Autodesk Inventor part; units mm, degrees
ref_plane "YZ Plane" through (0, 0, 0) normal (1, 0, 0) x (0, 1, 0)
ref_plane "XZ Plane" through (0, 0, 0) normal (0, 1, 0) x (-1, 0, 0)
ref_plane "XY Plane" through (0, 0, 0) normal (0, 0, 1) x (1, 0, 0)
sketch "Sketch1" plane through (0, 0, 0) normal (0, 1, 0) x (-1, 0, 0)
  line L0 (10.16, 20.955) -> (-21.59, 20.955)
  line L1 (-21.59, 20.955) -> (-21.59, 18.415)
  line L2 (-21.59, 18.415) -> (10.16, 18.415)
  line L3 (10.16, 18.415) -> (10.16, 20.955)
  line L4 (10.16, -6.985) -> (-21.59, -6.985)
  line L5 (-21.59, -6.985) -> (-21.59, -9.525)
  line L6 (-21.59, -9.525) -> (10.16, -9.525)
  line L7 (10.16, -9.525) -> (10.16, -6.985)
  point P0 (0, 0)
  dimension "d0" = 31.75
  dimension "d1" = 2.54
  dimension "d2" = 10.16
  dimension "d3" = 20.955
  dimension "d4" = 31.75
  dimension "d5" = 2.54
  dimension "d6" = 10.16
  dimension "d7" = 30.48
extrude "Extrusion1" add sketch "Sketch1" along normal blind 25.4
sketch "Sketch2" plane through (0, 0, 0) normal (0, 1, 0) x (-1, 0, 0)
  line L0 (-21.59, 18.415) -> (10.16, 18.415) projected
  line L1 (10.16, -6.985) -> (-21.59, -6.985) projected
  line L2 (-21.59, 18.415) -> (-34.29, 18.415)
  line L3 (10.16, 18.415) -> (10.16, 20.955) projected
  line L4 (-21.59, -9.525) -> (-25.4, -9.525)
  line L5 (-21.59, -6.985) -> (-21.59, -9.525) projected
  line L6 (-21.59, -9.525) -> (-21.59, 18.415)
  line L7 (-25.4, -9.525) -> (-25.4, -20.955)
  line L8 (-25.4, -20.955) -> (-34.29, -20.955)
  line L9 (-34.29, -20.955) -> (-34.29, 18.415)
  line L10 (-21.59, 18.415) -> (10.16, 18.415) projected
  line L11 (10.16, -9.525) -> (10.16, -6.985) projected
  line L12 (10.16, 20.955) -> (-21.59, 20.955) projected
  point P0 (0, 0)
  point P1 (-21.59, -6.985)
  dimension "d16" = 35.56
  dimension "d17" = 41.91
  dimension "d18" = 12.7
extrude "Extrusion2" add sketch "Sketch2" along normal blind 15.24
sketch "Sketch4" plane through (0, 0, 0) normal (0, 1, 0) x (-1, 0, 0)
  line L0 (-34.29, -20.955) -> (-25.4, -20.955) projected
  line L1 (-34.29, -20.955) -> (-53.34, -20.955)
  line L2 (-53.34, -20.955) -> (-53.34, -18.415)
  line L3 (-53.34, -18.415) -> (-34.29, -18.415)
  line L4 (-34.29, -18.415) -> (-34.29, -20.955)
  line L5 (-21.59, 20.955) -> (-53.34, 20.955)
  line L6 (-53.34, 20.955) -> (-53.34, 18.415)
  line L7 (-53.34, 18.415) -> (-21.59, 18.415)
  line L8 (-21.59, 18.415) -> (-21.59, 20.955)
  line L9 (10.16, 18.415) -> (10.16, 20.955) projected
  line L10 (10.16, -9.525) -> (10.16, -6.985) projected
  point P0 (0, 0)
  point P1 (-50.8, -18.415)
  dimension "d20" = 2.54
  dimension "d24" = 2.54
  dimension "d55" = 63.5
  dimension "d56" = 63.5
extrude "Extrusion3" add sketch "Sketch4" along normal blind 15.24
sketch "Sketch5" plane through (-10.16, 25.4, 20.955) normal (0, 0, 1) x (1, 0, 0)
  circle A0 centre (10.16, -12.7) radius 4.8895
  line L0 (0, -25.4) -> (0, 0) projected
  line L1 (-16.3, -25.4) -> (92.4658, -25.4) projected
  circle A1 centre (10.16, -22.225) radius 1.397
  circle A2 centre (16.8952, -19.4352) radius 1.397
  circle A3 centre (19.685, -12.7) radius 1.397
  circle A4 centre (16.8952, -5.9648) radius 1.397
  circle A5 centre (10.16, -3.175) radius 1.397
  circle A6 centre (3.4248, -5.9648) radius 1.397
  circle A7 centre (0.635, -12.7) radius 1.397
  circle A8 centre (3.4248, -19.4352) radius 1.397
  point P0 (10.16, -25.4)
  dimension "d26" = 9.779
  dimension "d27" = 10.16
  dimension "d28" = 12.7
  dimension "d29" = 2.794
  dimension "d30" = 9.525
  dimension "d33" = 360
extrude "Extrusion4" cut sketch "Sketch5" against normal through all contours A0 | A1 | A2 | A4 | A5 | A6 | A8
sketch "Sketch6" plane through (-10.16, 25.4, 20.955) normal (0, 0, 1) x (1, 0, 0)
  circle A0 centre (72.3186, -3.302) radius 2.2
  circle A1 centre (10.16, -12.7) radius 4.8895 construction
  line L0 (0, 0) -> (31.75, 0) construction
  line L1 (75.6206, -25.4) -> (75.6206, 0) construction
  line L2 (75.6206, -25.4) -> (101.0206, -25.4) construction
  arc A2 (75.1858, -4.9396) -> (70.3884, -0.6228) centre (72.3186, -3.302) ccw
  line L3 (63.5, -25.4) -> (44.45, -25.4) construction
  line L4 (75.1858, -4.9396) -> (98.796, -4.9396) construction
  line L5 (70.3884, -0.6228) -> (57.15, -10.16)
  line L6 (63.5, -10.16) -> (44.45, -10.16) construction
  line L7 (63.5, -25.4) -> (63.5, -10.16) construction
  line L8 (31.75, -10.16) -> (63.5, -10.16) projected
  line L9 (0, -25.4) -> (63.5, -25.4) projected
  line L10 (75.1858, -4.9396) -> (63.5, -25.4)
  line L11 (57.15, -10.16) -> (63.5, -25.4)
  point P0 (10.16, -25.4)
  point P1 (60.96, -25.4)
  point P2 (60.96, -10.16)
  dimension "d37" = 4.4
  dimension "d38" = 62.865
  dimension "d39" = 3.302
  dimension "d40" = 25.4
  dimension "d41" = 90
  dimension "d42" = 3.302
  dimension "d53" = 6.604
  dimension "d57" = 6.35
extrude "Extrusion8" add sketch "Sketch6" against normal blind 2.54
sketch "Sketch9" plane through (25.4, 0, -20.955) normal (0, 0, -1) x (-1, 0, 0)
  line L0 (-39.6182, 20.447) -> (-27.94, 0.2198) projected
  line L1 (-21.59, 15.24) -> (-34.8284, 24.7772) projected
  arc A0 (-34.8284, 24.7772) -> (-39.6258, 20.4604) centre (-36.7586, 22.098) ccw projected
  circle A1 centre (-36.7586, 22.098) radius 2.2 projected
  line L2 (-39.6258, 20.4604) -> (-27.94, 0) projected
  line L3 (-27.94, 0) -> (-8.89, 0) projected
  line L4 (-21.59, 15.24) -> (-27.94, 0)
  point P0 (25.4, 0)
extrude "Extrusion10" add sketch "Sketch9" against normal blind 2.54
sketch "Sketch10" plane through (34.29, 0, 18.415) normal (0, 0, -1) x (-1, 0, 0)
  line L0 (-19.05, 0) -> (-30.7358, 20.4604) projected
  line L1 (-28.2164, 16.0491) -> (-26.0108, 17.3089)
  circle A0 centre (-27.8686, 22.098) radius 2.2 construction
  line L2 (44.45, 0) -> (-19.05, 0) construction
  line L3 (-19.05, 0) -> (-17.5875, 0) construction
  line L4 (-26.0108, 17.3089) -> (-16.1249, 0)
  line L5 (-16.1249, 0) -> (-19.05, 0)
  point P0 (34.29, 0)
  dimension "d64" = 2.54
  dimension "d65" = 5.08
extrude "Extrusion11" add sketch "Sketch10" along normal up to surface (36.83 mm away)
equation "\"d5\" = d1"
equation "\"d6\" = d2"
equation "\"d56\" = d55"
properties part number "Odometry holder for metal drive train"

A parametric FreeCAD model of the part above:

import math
import FreeCAD as App
import Part
import Sketcher
Q = App.Units.Quantity


def add_polygon(sketch, points):
    """Adds a closed chain of lines whose ends are joined by coincident constraints."""
    first, n = sketch.GeometryCount, len(points)
    for a, b in zip(points, points[1:] + points[:1]):
        sketch.addGeometry(Part.LineSegment(App.Vector(*a, 0), App.Vector(*b, 0)), False)
    for i in range(n):
        sketch.addConstraint(Sketcher.Constraint("Coincident", first + i, 2, first + (i + 1) % n, 1))

doc = App.newDocument("Part")
body = doc.addObject("PartDesign::Body", "Body")
body.AllowCompound = True

# Sketch on XZ plane
sketch1 = doc.addObject("Sketcher::SketchObject", "Sketch")
body.addObject(sketch1)
sketch1.AttachmentSupport = (doc.XZ_Plane, [""])
sketch1.MapMode = "FlatFace"
add_polygon(sketch1, [(-10.2, 18.4), (-10.2, 21), (21.6, 21), (21.6, 18.4)])  # lines 0-3
add_polygon(sketch1, [(-10.2, -9.5), (-10.2, -7), (21.6, -7), (21.6, -9.5)])  # lines 4-7
sketch1.addConstraint([
    Sketcher.Constraint("Vertical", 0),
    Sketcher.Constraint("Horizontal", 1),
    Sketcher.Constraint("Vertical", 2),
    Sketcher.Constraint("Horizontal", 3),
    Sketcher.Constraint("Vertical", 4),
    Sketcher.Constraint("Horizontal", 5),
    Sketcher.Constraint("Vertical", 6),
    Sketcher.Constraint("Horizontal", 7),
    Sketcher.Constraint("Vertical", 3, 2, 4, 2),
    Sketcher.Constraint("Vertical", 2, 2, 5, 2),
    Sketcher.Constraint("Equal", 2, 4),
    Sketcher.Constraint("DistanceY", 0, 1, 0, 2, Q("0.1 in")),
    Sketcher.Constraint("DistanceX", 1, 1, 1, 2, Q("1.25 in")),
    Sketcher.Constraint("DistanceX", 0, 2, -1, 1, Q("0.4 in")),
    Sketcher.Constraint("DistanceY", 6, 2, 1, 2, Q("1.2 in")),
    Sketcher.Constraint("DistanceY", -1, 1, 0, 2, Q("0.825 in")),
])
pad1 = doc.addObject("PartDesign::Pad", "Pad")
body.addObject(pad1)
pad1.Profile = sketch1
pad1.Length = Q("1 in")
pad1.Reversed = True

# Sketch on XZ plane
sketch2 = doc.addObject("Sketcher::SketchObject", "Sketch001")
body.addObject(sketch2)
sketch2.AttachmentSupport = (doc.XZ_Plane, [""])
sketch2.MapMode = "FlatFace"
add_polygon(sketch2, [(21.6, -9.5), (21.6, 18.4), (34.3, 18.4), (34.3, -21), (25.4, -21), (25.4, -9.5)])  # lines 0-5
sketch2.addConstraint([
    Sketcher.Constraint("Vertical", 0),
    Sketcher.Constraint("Horizontal", 1),
    Sketcher.Constraint("Vertical", 2),
    Sketcher.Constraint("Horizontal", 3),
    Sketcher.Constraint("Vertical", 4),
    Sketcher.Constraint("Horizontal", 5),
    Sketcher.Constraint("DistanceX", 1, 1, 1, 2, Q("0.5 in")),
    Sketcher.Constraint("DistanceY", 0, 1, 0, 2, Q("1.1 in")),
    Sketcher.Constraint("DistanceX", -1, 1, 3, 2, Q("1 in")),
    Sketcher.Constraint("DistanceX", 3, 2, 3, 1, Q("0.35 in")),
    Sketcher.Constraint("DistanceY", 2, 2, 2, 1, Q("1.55 in")),
    Sketcher.Constraint("DistanceY", -1, 1, 0, 2, Q("0.725 in")),
])
pad2 = doc.addObject("PartDesign::Pad", "Pad001")
body.addObject(pad2)
pad2.Profile = sketch2
pad2.Length = Q("0.6 in")
pad2.Reversed = True

# Sketch on XZ plane
sketch3 = doc.addObject("Sketcher::SketchObject", "Sketch002")
body.addObject(sketch3)
sketch3.AttachmentSupport = (doc.XZ_Plane, [""])
sketch3.MapMode = "FlatFace"
add_polygon(sketch3, [(53.3, -21), (34.3, -21), (34.3, -18.4), (53.3, -18.4)])  # lines 0-3
add_polygon(sketch3, [(21.6, 18.4), (21.6, 21), (53.3, 21), (53.3, 18.4)])  # lines 4-7
sketch3.addConstraint([
    Sketcher.Constraint("Horizontal", 0),
    Sketcher.Constraint("Vertical", 1),
    Sketcher.Constraint("Horizontal", 2),
    Sketcher.Constraint("Vertical", 3),
    Sketcher.Constraint("Vertical", 4),
    Sketcher.Constraint("Horizontal", 5),
    Sketcher.Constraint("Vertical", 6),
    Sketcher.Constraint("Horizontal", 7),
    Sketcher.Constraint("Symmetric", 3, 2, 5, 2, -1),
    Sketcher.Constraint("Equal", 3, 4),
    Sketcher.Constraint("DistanceY", 1, 1, 1, 2, Q("0.1 in")),
    Sketcher.Constraint("DistanceX", 0, 2, 0, 1, Q("0.75 in")),
    Sketcher.Constraint("DistanceX", 5, 1, 5, 2, Q("1.25 in")),
    Sketcher.Constraint("DistanceX", -1, 1, 2, 2, Q("2.1 in")),
    Sketcher.Constraint("DistanceY", 1, 2, 4, 2, Q("1.55 in")),
])
pad3 = doc.addObject("PartDesign::Pad", "Pad002")
body.addObject(pad3)
pad3.Profile = sketch3
pad3.Length = Q("0.6 in")
pad3.Reversed = True

# Sketch on XY plane
sketch4 = doc.addObject("Sketcher::SketchObject", "Sketch003")
body.addObject(sketch4)
sketch4.AttachmentSupport = (doc.XY_Plane, [""])
sketch4.MapMode = "FlatFace"
sketch4.AttachmentOffset = App.Placement(App.Vector(0, 0, 0.825 * 25.4), App.Rotation())
sketch4.addGeometry([
    Part.Circle(App.Vector(0, 12.7, 0), App.Vector(0, 0, 1), 4.9),  # 0
    Part.Circle(App.Vector(0, 3.2, 0), App.Vector(0, 0, 1), 1.4),  # 1
    Part.Circle(App.Vector(6.7, 6, 0), App.Vector(0, 0, 1), 1.4),  # 2
    Part.Circle(App.Vector(6.7, 19.4, 0), App.Vector(0, 0, 1), 1.4),  # 3
    Part.Circle(App.Vector(0, 22.2, 0), App.Vector(0, 0, 1), 1.4),  # 4
    Part.Circle(App.Vector(-6.7, 19.4, 0), App.Vector(0, 0, 1), 1.4),  # 5
    Part.Circle(App.Vector(-6.7, 6, 0), App.Vector(0, 0, 1), 1.4),  # 6
], False)
sketch4.addConstraint([
    Sketcher.Constraint("Equal", 1, 2),
    Sketcher.Constraint("Equal", 2, 3),
    Sketcher.Constraint("Equal", 3, 4),
    Sketcher.Constraint("Equal", 4, 5),
    Sketcher.Constraint("Equal", 5, 6),
    Sketcher.Constraint("Symmetric", 3, 3, 5, 3, -2),
    Sketcher.Constraint("Symmetric", 2, 3, 6, 3, -2),
    Sketcher.Constraint("PointOnObject", 0, 3, -2),
    Sketcher.Constraint("PointOnObject", 1, 3, -2),
    Sketcher.Constraint("PointOnObject", 4, 3, -2),
    Sketcher.Constraint("Vertical", 2, 3, 3, 3),
    Sketcher.Constraint("Diameter", 1, Q("0.11 in")),
    Sketcher.Constraint("Diameter", 0, Q("0.385 in")),
    Sketcher.Constraint("DistanceY", -1, 1, 0, 3, Q("0.5 in")),
    Sketcher.Constraint("DistanceY", 1, 3, 0, 3, Q("0.375 in")),
    Sketcher.Constraint("DistanceY", 0, 3, 4, 3, Q("0.375 in")),
    Sketcher.Constraint("DistanceX", -1, 1, 2, 3, Q("6.7352 mm")),
    Sketcher.Constraint("DistanceY", -1, 1, 2, 3, Q("5.9648 mm")),
    Sketcher.Constraint("DistanceY", -1, 1, 3, 3, Q("19.4352 mm")),
])
pocket1 = doc.addObject("PartDesign::Pocket", "Pocket")
body.addObject(pocket1)
pocket1.Profile = sketch4
pocket1.Type = "ThroughAll"

# Sketch on XY plane
sketch5 = doc.addObject("Sketcher::SketchObject", "Sketch004")
body.addObject(sketch5)
sketch5.AttachmentSupport = (doc.XY_Plane, [""])
sketch5.MapMode = "FlatFace"
sketch5.AttachmentOffset = App.Placement(App.Vector(0, 0, 0.825 * 25.4), App.Rotation())
sketch5.addGeometry([
    Part.LineSegment(App.Vector(53.3, 0, 0), App.Vector(65, 20.5, 0)),  # 0
    Part.ArcOfCircle(Part.Circle(App.Vector(62.2, 22.1, 0), App.Vector(0, 0, 1), 3.3), math.radians(-30), math.radians(126)),  # 1
    Part.LineSegment(App.Vector(60.2, 24.8, 0), App.Vector(47, 15.2, 0)),  # 2
    Part.LineSegment(App.Vector(47, 15.2, 0), App.Vector(53.3, 0, 0)),  # 3
    Part.Circle(App.Vector(62.2, 22.1, 0), App.Vector(0, 0, 1), 2.2),  # 4
], False)
sketch5.addConstraint([
    Sketcher.Constraint("Tangent", 0, 2, 1, 1),
    Sketcher.Constraint("Tangent", 1, 2, 2, 1),
    Sketcher.Constraint("Coincident", 2, 2, 3, 1),
    Sketcher.Constraint("Coincident", 3, 2, 0, 1),
    Sketcher.Constraint("Coincident", 4, 3, 1, 3),
    Sketcher.Constraint("PointOnObject", 3, 2, -1),
    Sketcher.Constraint("Radius", 1, Q("0.13 in")),
    Sketcher.Constraint("Diameter", 4, Q("4.4 mm")),
    Sketcher.Constraint("DistanceX", 2, 2, 3, 2, Q("0.25 in")),
    Sketcher.Constraint("DistanceY", -1, 1, 2, 2, Q("0.6 in")),
    Sketcher.Constraint("DistanceX", -1, 1, 3, 2, Q("2.1 in")),
    Sketcher.Constraint("DistanceY", -1, 1, 1, 3, Q("0.87 in")),
    Sketcher.Constraint("Angle", 2, Q("-144.2303 deg")),
])
pad4 = doc.addObject("PartDesign::Pad", "Pad003")
body.addObject(pad4)
pad4.Profile = sketch5
pad4.Length = Q("0.1 in")
pad4.Reversed = True

# Sketch on XY plane
sketch6 = doc.addObject("Sketcher::SketchObject", "Sketch005")
body.addObject(sketch6)
sketch6.AttachmentSupport = (doc.XY_Plane, [""])
sketch6.MapMode = "FlatFace"
sketch6.AttachmentOffset = App.Placement(App.Vector(0, 0, -0.825 * 25.4), App.Rotation())
sketch6.addGeometry([
    Part.LineSegment(App.Vector(53.3, 0, 0), App.Vector(47, 15.2, 0)),  # 0
    Part.LineSegment(App.Vector(47, 15.2, 0), App.Vector(60.2, 24.8, 0)),  # 1
    Part.ArcOfCircle(Part.Circle(App.Vector(62.2, 22.1, 0), App.Vector(0, 0, 1), 3.3), math.radians(-30), math.radians(126)),  # 2
    Part.LineSegment(App.Vector(65, 20.5, 0), App.Vector(53.3, 0, 0)),  # 3
    Part.Circle(App.Vector(62.2, 22.1, 0), App.Vector(0, 0, 1), 2.2),  # 4
], False)
sketch6.addConstraint([
    Sketcher.Constraint("Coincident", 0, 2, 1, 1),
    Sketcher.Constraint("Tangent", 1, 2, 2, 2),
    Sketcher.Constraint("Tangent", 2, 1, 3, 1),
    Sketcher.Constraint("Coincident", 3, 2, 0, 1),
    Sketcher.Constraint("Coincident", 4, 3, 2, 3),
    Sketcher.Constraint("PointOnObject", 3, 2, -1),
    Sketcher.Constraint("Radius", 2, Q("0.13 in")),
    Sketcher.Constraint("DistanceY", -1, 1, 0, 2, Q("0.6 in")),
    Sketcher.Constraint("DistanceX", -1, 1, 3, 2, Q("2.1 in")),
    Sketcher.Constraint("Distance", 0, Q("0.65 in")),
    Sketcher.Constraint("Diameter", 4, Q("4.4 mm")),
    Sketcher.Constraint("DistanceY", -1, 1, 2, 3, Q("0.87 in")),
    Sketcher.Constraint("Angle", 1, Q("35.7697 deg")),
])
pad5 = doc.addObject("PartDesign::Pad", "Pad004")
body.addObject(pad5)
pad5.Profile = sketch6
pad5.Length = Q("0.1 in")

# Sketch on XY plane
sketch7 = doc.addObject("Sketcher::SketchObject", "Sketch006")
body.addObject(sketch7)
sketch7.AttachmentSupport = (doc.XY_Plane, [""])
sketch7.MapMode = "FlatFace"
sketch7.AttachmentOffset = App.Placement(App.Vector(0, 0, 0.725 * 25.4), App.Rotation())
add_polygon(sketch7, [(62.50634, 16.049134), (53.34, 0), (50.4149, 0), (60.3008, 17.3089)])  # lines 0-3
sketch7.addConstraint([
    Sketcher.Constraint("Horizontal", 1),
    Sketcher.Constraint("PointOnObject", 0, 2, -1),
    Sketcher.Constraint("Distance", 3, Q("0.1 in")),
    Sketcher.Constraint("DistanceX", -1, 1, 0, 2, Q("2.1 in")),
    Sketcher.Constraint("DistanceX", 1, 2, 1, 1, Q("2.925 mm")),
    Sketcher.Constraint("DistanceX", 1, 2, 2, 2, Q("0.3892 in")),
    Sketcher.Constraint("DistanceY", 3, 2, 2, 2, Q("0.0496 in")),
    Sketcher.Constraint("Distance", 0, Q("18.4823 mm")),
])
pad6 = doc.addObject("PartDesign::Pad", "Pad005")
body.addObject(pad6)
pad6.Profile = sketch7
pad6.Length = Q("1.45 in")
pad6.Reversed = True

doc.recompute()
